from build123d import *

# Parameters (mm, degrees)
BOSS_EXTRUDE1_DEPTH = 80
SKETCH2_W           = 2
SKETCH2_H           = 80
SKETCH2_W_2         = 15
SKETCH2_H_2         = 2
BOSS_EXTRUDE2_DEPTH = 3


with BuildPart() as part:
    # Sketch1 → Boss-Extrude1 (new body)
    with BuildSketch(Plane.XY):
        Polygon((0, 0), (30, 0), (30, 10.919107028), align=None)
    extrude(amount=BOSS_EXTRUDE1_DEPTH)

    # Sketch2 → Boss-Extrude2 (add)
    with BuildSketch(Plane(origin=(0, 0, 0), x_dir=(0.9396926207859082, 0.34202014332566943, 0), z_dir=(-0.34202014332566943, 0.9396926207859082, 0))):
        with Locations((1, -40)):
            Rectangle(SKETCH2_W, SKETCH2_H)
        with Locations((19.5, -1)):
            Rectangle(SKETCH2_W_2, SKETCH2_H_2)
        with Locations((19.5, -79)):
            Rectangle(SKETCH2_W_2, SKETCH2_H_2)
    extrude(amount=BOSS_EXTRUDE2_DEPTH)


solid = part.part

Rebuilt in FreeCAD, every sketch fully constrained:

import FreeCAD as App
import Part
import Sketcher

V = App.Vector
Q = App.Units.Quantity


def add_polygon(sketch, points):
    """Adds a closed chain of lines whose ends are joined by coincident constraints."""
    first, n = sketch.GeometryCount, len(points)
    for a, b in zip(points, points[1:] + points[:1]):
        sketch.addGeometry(Part.LineSegment(App.Vector(*a, 0), App.Vector(*b, 0)), False)
    for i in range(n):
        sketch.addConstraint(Sketcher.Constraint("Coincident", first + i, 2, first + (i + 1) % n, 1))

doc = App.newDocument("Part")
body = doc.addObject("PartDesign::Body", "Body")

# Sketch on XY plane
sketch1 = doc.addObject("Sketcher::SketchObject", "Sketch")
body.addObject(sketch1)
sketch1.AttachmentSupport = (doc.XY_Plane, [""])
sketch1.MapMode = "FlatFace"
add_polygon(sketch1, [(0, 0), (30, 0), (30, 11)])  # lines 0-2
sketch1.addConstraint(Sketcher.Constraint("Horizontal", 0))
sketch1.addConstraint(Sketcher.Constraint("Vertical", 1))
sketch1.addConstraint(Sketcher.Constraint("Coincident", 2, 2, -1, 1))
sketch1.addConstraint(Sketcher.Constraint("DistanceX", 0, 1, 0, 2, 30.0))
sketch1.addConstraint(Sketcher.Constraint("Angle", 2, Q("-160 deg")))
pad1 = doc.addObject("PartDesign::Pad", "Pad")
body.addObject(pad1)
pad1.Profile = sketch1
pad1.Length = 80

# Sketch on an angled plane
sketch2 = doc.addObject("Sketcher::SketchObject", "Sketch001")
body.addObject(sketch2)
sketch2.Placement = App.Placement(V(0, 0, 0), App.Rotation(V(0.939692621, 0.342020143, 0), V(0, 0, -1), V(-0.342020143, 0.939692621, 0), "ZXY"))
add_polygon(sketch2, [(0, 0), (0, -80), (2, -80), (2, 0)])  # lines 0-3
add_polygon(sketch2, [(12, 0), (12, -2), (27, -2), (27, 0)])  # lines 4-7
add_polygon(sketch2, [(12, -78), (12, -80), (27, -80), (27, -78)])  # lines 8-11
sketch2.addConstraint(Sketcher.Constraint("Vertical", 0))
sketch2.addConstraint(Sketcher.Constraint("Horizontal", 1))
sketch2.addConstraint(Sketcher.Constraint("Vertical", 2))
sketch2.addConstraint(Sketcher.Constraint("Horizontal", 3))
sketch2.addConstraint(Sketcher.Constraint("Vertical", 4))
sketch2.addConstraint(Sketcher.Constraint("Horizontal", 5))
sketch2.addConstraint(Sketcher.Constraint("Vertical", 6))
sketch2.addConstraint(Sketcher.Constraint("Horizontal", 7))
sketch2.addConstraint(Sketcher.Constraint("Vertical", 8))
sketch2.addConstraint(Sketcher.Constraint("Horizontal", 9))
sketch2.addConstraint(Sketcher.Constraint("Vertical", 10))
sketch2.addConstraint(Sketcher.Constraint("Horizontal", 11))
sketch2.addConstraint(Sketcher.Constraint("Coincident", 3, 2, -1, 1))
sketch2.addConstraint(Sketcher.Constraint("PointOnObject", 6, 2, -1))
sketch2.addConstraint(Sketcher.Constraint("Horizontal", 1, 2, 8, 2))
sketch2.addConstraint(Sketcher.Constraint("Vertical", 7, 2, 8, 2))
sketch2.addConstraint(Sketcher.Constraint("Vertical", 6, 2, 9, 2))
sketch2.addConstraint(Sketcher.Constraint("Equal", 3, 4))
sketch2.addConstraint(Sketcher.Constraint("Equal", 6, 8))
sketch2.addConstraint(Sketcher.Constraint("DistanceX", 1, 1, 1, 2, 2.0))
sketch2.addConstraint(Sketcher.Constraint("DistanceX", 5, 1, 5, 2, 15.0))
sketch2.addConstraint(Sketcher.Constraint("DistanceY", 0, 2, 0, 1, 80.0))
sketch2.addConstraint(Sketcher.Constraint("DistanceX", -1, 1, 4, 2, 12.0))
pad2 = doc.addObject("PartDesign::Pad", "Pad001")
body.addObject(pad2)
pad2.Profile = sketch2
pad2.Length = 3

doc.recompute()
